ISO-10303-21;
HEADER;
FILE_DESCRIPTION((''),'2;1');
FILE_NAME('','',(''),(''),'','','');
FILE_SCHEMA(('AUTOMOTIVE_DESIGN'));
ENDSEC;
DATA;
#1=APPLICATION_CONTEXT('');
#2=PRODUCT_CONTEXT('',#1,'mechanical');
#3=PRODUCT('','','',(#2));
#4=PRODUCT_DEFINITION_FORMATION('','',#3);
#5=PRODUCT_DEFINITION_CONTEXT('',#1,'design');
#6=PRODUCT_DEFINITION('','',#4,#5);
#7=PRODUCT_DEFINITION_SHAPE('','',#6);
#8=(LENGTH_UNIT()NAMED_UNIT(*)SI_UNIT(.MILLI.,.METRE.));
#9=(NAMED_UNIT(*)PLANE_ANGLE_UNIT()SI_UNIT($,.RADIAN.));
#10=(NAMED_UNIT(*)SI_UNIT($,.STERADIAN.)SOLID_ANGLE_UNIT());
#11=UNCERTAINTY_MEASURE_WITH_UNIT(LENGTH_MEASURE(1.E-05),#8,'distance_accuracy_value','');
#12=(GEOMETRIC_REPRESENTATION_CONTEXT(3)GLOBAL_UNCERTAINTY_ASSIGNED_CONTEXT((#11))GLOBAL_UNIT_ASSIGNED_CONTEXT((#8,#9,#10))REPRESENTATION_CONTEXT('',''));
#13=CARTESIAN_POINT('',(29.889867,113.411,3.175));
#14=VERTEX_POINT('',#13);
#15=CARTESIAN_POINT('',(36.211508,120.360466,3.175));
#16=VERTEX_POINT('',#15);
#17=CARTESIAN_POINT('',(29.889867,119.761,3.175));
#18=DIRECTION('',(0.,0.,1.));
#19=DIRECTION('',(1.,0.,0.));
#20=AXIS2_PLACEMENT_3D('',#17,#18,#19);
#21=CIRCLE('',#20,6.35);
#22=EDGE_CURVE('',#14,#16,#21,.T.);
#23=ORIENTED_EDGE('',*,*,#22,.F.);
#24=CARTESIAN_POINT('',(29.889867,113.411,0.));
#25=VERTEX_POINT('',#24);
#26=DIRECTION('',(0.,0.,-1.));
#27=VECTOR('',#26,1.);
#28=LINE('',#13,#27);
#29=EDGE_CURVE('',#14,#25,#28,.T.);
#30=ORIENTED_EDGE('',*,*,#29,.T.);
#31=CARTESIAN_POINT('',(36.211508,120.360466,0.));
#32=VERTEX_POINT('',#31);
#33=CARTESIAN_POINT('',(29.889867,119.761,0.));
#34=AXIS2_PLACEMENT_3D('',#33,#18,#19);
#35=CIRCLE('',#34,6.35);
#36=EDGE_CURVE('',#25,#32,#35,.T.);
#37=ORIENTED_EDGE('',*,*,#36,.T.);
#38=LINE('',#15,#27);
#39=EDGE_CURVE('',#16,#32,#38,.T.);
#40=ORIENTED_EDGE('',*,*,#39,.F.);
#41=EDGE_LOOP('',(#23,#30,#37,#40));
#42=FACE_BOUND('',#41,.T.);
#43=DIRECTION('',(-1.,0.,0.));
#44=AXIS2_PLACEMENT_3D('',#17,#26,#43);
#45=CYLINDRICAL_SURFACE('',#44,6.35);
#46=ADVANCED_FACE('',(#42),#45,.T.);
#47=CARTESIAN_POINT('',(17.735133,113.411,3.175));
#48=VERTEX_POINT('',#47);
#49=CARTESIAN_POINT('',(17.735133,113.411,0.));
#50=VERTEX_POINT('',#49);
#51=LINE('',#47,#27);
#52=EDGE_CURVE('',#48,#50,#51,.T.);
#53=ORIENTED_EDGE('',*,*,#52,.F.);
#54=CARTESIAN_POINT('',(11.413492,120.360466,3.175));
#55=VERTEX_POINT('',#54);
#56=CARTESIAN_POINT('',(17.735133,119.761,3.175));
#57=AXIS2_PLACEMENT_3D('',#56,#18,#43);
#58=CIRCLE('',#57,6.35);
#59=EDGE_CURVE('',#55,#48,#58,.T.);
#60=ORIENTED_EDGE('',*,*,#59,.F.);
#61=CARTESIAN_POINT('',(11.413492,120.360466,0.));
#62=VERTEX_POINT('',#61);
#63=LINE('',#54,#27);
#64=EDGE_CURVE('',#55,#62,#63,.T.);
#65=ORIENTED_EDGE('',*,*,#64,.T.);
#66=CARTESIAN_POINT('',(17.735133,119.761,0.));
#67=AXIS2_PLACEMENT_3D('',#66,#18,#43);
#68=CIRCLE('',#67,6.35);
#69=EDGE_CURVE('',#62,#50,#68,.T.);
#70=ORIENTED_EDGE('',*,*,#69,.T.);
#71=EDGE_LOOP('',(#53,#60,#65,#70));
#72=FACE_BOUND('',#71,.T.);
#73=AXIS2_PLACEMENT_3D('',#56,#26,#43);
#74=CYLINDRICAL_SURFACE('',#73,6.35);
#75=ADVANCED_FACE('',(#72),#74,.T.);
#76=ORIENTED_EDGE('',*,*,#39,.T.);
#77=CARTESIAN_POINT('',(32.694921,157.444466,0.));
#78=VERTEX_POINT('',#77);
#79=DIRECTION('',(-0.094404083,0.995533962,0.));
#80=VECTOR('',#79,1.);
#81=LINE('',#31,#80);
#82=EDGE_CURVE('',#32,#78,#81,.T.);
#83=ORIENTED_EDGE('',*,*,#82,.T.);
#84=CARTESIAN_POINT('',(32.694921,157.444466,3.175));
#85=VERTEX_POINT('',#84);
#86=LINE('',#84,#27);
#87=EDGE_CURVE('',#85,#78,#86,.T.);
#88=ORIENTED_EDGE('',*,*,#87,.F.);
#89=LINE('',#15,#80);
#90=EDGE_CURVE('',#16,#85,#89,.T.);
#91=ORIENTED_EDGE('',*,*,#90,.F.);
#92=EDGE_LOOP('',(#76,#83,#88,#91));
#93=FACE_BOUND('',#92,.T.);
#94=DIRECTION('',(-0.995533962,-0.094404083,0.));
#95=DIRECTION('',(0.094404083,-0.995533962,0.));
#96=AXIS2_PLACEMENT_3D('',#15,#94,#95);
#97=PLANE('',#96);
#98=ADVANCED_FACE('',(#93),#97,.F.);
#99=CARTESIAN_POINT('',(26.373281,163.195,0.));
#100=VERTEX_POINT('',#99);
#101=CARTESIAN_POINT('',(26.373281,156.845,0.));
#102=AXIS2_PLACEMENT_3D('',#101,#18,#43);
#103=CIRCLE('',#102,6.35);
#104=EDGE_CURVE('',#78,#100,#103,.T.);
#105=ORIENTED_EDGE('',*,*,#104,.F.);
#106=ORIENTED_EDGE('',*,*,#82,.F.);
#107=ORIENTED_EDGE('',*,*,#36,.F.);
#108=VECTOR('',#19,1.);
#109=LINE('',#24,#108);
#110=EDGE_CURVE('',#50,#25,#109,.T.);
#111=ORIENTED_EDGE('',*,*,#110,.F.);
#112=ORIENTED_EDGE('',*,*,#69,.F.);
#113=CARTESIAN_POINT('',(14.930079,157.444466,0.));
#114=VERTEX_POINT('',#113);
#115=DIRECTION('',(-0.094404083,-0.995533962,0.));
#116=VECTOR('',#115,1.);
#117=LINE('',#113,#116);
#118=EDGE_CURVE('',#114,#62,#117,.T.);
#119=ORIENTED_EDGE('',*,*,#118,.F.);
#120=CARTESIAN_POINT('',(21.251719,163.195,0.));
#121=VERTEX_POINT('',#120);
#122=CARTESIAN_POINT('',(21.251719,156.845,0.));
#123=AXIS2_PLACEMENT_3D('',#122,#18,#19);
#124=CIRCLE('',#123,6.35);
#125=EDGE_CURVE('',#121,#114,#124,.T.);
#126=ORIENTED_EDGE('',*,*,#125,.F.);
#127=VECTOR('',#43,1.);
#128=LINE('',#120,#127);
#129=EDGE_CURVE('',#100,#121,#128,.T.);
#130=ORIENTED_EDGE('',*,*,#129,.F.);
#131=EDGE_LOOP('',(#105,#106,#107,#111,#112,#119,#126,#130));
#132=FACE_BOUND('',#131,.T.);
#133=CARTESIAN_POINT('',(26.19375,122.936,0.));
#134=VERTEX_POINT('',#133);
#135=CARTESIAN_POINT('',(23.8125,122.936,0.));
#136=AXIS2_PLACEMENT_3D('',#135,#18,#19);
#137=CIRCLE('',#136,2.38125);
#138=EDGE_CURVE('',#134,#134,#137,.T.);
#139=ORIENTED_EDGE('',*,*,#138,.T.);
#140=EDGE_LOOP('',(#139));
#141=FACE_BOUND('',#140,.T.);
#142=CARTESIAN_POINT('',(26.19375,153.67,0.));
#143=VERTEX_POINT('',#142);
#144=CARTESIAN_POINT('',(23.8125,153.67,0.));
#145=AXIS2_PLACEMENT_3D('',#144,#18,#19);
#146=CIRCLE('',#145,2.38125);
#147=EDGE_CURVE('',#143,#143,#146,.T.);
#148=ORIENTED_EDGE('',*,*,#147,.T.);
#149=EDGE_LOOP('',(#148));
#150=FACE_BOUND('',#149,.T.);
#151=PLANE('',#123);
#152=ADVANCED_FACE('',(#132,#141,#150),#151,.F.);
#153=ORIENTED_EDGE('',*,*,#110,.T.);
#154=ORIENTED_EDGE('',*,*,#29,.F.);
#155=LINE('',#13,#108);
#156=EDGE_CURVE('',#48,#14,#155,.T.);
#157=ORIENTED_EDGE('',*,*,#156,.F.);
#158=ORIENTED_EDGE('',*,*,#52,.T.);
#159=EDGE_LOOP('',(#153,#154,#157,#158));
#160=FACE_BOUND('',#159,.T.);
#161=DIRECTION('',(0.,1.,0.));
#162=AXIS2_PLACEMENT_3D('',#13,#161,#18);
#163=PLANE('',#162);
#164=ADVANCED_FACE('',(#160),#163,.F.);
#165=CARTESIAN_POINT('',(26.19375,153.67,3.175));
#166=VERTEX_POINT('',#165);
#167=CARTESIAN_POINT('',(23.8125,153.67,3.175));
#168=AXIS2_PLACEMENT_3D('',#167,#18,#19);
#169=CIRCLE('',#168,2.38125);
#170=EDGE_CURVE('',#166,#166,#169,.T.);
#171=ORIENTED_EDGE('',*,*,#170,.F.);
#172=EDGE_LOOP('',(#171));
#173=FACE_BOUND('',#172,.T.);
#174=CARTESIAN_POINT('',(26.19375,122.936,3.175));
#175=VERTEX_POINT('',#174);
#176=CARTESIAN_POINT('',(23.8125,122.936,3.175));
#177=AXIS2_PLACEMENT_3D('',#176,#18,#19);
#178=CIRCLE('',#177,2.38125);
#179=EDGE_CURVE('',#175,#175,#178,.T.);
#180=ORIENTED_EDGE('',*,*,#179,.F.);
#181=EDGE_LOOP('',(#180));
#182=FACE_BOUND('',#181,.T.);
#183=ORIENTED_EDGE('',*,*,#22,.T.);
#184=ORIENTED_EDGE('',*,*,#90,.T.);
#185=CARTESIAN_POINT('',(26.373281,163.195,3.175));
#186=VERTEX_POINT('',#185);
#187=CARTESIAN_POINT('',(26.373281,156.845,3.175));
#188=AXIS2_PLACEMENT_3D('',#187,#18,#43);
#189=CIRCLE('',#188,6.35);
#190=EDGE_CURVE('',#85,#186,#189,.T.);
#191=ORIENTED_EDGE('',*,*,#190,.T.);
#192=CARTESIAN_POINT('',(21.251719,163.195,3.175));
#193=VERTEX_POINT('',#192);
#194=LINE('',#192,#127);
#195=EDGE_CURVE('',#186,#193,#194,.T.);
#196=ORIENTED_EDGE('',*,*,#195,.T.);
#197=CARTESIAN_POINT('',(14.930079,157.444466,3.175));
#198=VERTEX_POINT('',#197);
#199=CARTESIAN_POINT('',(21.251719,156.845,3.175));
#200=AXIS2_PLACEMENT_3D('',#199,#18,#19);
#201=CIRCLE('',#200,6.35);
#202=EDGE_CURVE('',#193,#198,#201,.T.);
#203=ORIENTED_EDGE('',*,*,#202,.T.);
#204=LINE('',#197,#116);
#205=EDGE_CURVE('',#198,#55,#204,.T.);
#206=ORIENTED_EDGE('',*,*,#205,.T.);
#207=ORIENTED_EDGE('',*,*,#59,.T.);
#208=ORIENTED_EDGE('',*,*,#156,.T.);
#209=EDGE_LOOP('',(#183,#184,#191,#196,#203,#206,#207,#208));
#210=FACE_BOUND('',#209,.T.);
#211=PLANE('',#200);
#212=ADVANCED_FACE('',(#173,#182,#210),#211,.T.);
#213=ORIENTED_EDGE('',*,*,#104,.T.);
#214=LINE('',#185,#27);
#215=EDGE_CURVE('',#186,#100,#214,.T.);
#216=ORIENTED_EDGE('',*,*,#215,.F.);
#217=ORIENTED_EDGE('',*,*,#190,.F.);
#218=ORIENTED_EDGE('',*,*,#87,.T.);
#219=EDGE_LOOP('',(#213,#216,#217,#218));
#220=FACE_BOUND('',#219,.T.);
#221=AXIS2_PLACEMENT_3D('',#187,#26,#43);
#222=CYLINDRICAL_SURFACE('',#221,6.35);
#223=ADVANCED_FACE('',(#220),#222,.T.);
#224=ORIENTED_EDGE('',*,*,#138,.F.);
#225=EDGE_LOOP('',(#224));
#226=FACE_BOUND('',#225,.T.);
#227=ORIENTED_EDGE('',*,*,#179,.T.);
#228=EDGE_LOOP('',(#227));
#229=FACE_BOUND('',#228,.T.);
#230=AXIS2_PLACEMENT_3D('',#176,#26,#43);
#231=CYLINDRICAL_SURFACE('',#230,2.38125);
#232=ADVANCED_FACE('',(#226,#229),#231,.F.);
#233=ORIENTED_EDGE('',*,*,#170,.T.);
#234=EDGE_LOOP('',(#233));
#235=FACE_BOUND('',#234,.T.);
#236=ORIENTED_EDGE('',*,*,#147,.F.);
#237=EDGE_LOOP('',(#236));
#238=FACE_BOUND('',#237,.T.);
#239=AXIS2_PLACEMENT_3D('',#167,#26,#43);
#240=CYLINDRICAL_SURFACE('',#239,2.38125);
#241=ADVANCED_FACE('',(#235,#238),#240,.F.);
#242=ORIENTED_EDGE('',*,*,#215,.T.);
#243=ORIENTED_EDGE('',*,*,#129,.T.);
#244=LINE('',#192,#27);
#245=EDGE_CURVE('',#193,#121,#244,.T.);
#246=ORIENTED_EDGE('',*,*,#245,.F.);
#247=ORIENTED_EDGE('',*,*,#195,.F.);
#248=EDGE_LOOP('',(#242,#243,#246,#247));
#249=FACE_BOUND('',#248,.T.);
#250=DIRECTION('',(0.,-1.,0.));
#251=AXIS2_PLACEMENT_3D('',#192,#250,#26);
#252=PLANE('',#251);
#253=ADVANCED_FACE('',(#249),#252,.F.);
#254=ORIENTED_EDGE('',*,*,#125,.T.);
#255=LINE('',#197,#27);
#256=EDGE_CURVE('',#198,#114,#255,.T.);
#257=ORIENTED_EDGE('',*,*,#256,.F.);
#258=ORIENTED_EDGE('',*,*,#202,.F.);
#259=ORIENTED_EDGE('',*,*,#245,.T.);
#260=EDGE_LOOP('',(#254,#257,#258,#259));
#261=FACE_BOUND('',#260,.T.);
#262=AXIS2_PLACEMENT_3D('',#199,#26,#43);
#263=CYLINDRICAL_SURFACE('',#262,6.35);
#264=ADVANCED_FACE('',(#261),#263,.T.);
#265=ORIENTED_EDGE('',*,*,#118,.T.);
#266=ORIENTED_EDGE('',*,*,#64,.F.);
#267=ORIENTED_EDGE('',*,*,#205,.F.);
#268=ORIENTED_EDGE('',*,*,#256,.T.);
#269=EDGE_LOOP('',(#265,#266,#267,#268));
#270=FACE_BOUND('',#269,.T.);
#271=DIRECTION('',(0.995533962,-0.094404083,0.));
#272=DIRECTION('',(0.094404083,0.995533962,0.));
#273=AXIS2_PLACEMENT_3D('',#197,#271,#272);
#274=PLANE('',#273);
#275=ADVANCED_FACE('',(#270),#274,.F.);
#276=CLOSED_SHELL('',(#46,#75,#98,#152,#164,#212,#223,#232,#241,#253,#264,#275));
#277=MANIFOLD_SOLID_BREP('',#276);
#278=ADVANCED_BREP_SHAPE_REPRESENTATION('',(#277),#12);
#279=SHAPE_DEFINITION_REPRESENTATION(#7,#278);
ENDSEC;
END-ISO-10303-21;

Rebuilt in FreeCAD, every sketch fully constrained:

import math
import FreeCAD as App
import Part
import Sketcher

V = App.Vector
Q = App.Units.Quantity

doc = App.newDocument("Part")
body = doc.addObject("PartDesign::Body", "Body")

sketch1 = body.newObject("Sketcher::SketchObject", "Sketch")
sketch1.AttachmentSupport = (doc.getObject("XY_Plane"), [""])
sketch1.MapMode = "FlatFace"
sketch1.addGeometry([
    Part.LineSegment(V(36.211508, 120.360466, 0), V(32.694921, 157.444466, 0)),
    Part.ArcOfCircle(Part.Circle(V(26.373281, 156.845, 0), V(0, 0, 1), 6.35), math.radians(5.417022), math.radians(90)),
    Part.LineSegment(V(26.373281, 163.195, 0), V(21.251719, 163.195, 0)),
    Part.ArcOfCircle(Part.Circle(V(21.251719, 156.845, 0), V(0, 0, 1), 6.35), math.radians(90), math.radians(174.582978)),
    Part.LineSegment(V(14.930079, 157.444466, 0), V(11.413492, 120.360466, 0)),
    Part.ArcOfCircle(Part.Circle(V(17.735133, 119.761, 0), V(0, 0, 1), 6.35), math.radians(174.582978), math.radians(270)),
    Part.LineSegment(V(17.735133, 113.411, 0), V(29.889867, 113.411, 0)),
    Part.ArcOfCircle(Part.Circle(V(29.889867, 119.761, 0), V(0, 0, 1), 6.35), math.radians(-90), math.radians(5.417022)),
    Part.Circle(V(23.8125, 122.936, 0), V(0, 0, 1), 2.38125),
    Part.Circle(V(23.8125, 153.67, 0), V(0, 0, 1), 2.38125),
], False)
sketch1.addConstraint([
    Sketcher.Constraint("Tangent", 0, 2, 1, 1),
    Sketcher.Constraint("Tangent", 1, 2, 2, 1),
    Sketcher.Constraint("Tangent", 2, 2, 3, 1),
    Sketcher.Constraint("Tangent", 3, 2, 4, 1),
    Sketcher.Constraint("Tangent", 4, 2, 5, 1),
    Sketcher.Constraint("Tangent", 5, 2, 6, 1),
    Sketcher.Constraint("Tangent", 6, 2, 7, 1),
    Sketcher.Constraint("Tangent", 7, 2, 0, 1),
    Sketcher.Constraint("Horizontal", 2),
    Sketcher.Constraint("Horizontal", 6),
    Sketcher.Constraint("Equal", 1, 3),
    Sketcher.Constraint("Equal", 3, 5),
    Sketcher.Constraint("Equal", 5, 7),
    Sketcher.Constraint("Equal", 8, 9),
    Sketcher.Constraint("Horizontal", 0, 2, 3, 2),
    Sketcher.Constraint("Vertical", 8, 3, 9, 3),
    Sketcher.Constraint("Radius", 1, Q("0.25 in")),
    Sketcher.Constraint("Diameter", 8, Q("0.1875 in")),
    Sketcher.Constraint("DistanceY", -1, 1, 8, 3, Q("4.84 in")),
    Sketcher.Constraint("DistanceY", -1, 1, 9, 3, Q("6.05 in")),
    Sketcher.Constraint("DistanceY", 5, 3, 3, 3, Q("1.46 in")),
    Sketcher.Constraint("DistanceY", -1, 1, 1, 3, Q("6.175 in")),
    Sketcher.Constraint("DistanceX", -1, 1, 8, 3, Q("0.9375 in")),
    Sketcher.Constraint("DistanceX", 2, 2, 2, 1, 5.121561),
    Sketcher.Constraint("Distance", 0, 37.250362),
    Sketcher.Constraint("DistanceX", -1, 1, 1, 3, 26.373281),
])
pad1 = body.newObject("PartDesign::Pad", "Pad")
pad1.Profile = sketch1
pad1.Length = Q("0.125 in")

doc.recompute()
